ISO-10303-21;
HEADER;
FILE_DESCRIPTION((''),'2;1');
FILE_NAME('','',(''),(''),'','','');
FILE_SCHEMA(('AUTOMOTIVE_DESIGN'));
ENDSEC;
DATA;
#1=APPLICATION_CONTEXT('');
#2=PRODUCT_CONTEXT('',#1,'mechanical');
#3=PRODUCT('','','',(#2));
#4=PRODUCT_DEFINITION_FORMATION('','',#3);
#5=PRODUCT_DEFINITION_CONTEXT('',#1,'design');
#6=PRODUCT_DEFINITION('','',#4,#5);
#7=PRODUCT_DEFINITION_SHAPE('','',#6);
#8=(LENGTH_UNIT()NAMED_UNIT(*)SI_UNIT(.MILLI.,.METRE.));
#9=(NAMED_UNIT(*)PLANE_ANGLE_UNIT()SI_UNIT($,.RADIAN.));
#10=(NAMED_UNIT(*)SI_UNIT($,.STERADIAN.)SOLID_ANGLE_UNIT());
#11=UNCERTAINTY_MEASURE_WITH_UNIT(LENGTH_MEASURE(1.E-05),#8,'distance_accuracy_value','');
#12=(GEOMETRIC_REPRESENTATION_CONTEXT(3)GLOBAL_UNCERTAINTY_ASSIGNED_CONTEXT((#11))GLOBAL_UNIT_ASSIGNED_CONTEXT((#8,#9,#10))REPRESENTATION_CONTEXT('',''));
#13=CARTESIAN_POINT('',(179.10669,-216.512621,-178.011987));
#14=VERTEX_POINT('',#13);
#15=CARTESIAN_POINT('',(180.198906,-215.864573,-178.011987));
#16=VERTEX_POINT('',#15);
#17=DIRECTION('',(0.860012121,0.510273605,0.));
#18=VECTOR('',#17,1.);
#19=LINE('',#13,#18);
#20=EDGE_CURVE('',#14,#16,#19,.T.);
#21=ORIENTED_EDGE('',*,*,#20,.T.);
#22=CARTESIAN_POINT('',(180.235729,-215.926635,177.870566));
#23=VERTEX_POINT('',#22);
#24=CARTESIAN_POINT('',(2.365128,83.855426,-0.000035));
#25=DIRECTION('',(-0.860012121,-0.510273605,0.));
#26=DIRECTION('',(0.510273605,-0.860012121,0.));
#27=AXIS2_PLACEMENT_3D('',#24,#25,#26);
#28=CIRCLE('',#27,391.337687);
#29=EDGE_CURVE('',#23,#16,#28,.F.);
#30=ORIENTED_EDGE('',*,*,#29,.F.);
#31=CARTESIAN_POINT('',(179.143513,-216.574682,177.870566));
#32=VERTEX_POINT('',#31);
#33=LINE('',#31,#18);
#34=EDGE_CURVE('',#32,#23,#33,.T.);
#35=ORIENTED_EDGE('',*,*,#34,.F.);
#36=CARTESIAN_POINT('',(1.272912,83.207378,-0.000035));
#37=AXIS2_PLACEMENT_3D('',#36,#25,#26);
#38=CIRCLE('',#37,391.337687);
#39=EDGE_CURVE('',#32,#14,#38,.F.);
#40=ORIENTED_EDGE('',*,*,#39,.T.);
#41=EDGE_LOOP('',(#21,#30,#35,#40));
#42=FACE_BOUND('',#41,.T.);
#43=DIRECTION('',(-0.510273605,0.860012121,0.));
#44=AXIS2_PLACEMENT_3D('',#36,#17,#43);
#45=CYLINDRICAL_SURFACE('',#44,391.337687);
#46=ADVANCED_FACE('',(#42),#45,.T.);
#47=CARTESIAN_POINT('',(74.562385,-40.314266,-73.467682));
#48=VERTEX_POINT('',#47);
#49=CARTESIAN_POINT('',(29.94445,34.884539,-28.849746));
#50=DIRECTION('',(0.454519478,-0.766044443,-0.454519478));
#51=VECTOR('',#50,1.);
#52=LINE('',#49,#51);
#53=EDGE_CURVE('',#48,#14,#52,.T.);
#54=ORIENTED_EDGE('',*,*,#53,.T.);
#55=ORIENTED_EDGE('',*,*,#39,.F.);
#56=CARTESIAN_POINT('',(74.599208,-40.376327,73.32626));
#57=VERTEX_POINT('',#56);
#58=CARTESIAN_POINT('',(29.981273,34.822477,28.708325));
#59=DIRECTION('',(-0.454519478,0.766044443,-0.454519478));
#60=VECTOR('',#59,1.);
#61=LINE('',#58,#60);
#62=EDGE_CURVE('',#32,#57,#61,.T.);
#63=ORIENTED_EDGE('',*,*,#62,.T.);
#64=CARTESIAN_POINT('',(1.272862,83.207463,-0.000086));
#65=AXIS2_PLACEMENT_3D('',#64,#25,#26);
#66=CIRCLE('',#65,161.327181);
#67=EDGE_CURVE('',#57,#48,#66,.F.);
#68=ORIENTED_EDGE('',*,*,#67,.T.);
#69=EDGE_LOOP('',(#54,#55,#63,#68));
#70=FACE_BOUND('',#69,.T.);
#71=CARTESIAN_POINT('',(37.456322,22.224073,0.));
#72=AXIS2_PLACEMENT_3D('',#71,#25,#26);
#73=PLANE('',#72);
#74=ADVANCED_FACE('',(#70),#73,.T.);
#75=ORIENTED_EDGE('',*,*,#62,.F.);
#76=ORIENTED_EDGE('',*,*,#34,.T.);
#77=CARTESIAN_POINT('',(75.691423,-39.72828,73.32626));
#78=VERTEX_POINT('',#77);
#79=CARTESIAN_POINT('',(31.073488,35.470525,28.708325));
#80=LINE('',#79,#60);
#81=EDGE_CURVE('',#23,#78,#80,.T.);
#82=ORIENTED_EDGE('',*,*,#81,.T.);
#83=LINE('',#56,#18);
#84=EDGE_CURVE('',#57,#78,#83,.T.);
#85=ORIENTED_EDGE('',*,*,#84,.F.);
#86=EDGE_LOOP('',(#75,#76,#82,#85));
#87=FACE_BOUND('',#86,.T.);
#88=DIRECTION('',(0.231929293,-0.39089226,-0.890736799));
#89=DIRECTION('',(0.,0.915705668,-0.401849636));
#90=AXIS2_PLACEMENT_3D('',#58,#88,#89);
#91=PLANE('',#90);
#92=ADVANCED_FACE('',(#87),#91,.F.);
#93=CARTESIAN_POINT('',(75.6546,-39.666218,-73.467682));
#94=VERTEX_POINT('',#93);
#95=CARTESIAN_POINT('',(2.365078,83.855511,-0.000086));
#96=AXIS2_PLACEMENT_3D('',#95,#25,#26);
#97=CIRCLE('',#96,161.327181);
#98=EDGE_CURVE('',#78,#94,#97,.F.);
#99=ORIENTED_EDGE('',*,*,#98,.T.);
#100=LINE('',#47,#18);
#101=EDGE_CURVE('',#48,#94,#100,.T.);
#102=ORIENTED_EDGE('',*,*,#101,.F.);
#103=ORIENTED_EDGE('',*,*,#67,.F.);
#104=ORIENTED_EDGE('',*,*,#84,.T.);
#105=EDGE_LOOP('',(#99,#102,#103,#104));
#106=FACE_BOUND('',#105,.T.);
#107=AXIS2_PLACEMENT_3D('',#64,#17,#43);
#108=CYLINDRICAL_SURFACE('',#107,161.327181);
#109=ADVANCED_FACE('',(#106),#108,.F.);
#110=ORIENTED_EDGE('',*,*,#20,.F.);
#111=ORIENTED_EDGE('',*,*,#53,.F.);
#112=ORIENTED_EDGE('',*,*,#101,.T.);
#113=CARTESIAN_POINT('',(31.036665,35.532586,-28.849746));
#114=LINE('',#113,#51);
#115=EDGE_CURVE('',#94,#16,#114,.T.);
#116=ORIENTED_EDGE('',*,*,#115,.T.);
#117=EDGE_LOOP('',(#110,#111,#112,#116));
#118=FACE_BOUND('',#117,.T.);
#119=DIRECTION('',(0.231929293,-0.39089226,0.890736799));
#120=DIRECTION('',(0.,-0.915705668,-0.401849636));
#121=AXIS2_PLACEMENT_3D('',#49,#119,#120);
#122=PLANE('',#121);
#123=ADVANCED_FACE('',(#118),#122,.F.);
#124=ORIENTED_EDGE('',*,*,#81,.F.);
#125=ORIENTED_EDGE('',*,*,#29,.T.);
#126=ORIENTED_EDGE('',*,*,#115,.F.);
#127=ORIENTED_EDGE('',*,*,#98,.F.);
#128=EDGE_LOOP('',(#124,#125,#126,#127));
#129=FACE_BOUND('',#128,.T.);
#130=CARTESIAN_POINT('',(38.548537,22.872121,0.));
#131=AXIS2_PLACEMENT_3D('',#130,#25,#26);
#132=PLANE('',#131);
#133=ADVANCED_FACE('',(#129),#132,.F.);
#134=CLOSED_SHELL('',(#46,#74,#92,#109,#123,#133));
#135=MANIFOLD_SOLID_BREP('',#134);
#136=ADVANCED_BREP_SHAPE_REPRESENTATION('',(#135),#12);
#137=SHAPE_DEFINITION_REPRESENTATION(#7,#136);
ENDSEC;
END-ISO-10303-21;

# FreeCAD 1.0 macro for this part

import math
import FreeCAD as App
import Part
import Sketcher
Q = App.Units.Quantity

doc = App.newDocument("Part")
body = doc.addObject("PartDesign::Body", "Body")

sketch1 = body.newObject("Sketcher::SketchObject", "Sketch")
sketch1.Placement = App.Placement(App.Vector(85.435749, -57.395738, -3.750805), App.Rotation(App.Vector(0.484972207, -0.817369293, 0.310981347), App.Vector(-0.158685573, 0.267447728, 0.950416016), App.Vector(-0.860012121, -0.510273605, 0), "ZXY"))
sketch1.addGeometry([
    Part.LineSegment(App.Vector(-41, -60, 0), App.Vector(121, -223, 0)),
    Part.ArcOfCircle(Part.Circle(App.Vector(-155, 55, 0), App.Vector(0, 0, 1), 391), math.radians(-45), math.radians(9)),
    Part.LineSegment(App.Vector(232, 115, 0), App.Vector(5, 80, 0)),
    Part.ArcOfCircle(Part.Circle(App.Vector(-155, 55, 0), App.Vector(0, 0, 1), 161), math.radians(-45), math.radians(9)),
], False)
sketch1.addConstraint([
    Sketcher.Constraint("Coincident", 0, 2, 1, 1),
    Sketcher.Constraint("Coincident", 1, 2, 2, 1),
    Sketcher.Constraint("Coincident", 2, 2, 3, 2),
    Sketcher.Constraint("Coincident", 3, 1, 0, 1),
    Sketcher.Constraint("Equal", 0, 2),
    Sketcher.Constraint("Radius", 3, 161.327181),
    Sketcher.Constraint("Radius", 1, 391.337687),
    Sketcher.Constraint("DistanceX", -1, 1, 1, 2, 232.034501),
    Sketcher.Constraint("DistanceX", 3, 1, -1, 1, 40.915799),
    Sketcher.Constraint("DistanceX", -1, 1, 0, 2, 121.29308),
    Sketcher.Constraint("DistanceY", 3, 1, -1, 1, 59.966189),
    Sketcher.Constraint("DistanceX", 3, 3, 1, 3, 0.000109),
    Sketcher.Constraint("DistanceY", 0, 2, 3, 3, 277.56448),
    Sketcher.Constraint("DistanceX", 1, 3, 2, 2, 159.377852),
])
pad1 = body.newObject("PartDesign::Pad", "Pad")
pad1.Profile = sketch1
pad1.Length = Q("0.05 in")
pad1.Midplane = True

doc.recompute()
